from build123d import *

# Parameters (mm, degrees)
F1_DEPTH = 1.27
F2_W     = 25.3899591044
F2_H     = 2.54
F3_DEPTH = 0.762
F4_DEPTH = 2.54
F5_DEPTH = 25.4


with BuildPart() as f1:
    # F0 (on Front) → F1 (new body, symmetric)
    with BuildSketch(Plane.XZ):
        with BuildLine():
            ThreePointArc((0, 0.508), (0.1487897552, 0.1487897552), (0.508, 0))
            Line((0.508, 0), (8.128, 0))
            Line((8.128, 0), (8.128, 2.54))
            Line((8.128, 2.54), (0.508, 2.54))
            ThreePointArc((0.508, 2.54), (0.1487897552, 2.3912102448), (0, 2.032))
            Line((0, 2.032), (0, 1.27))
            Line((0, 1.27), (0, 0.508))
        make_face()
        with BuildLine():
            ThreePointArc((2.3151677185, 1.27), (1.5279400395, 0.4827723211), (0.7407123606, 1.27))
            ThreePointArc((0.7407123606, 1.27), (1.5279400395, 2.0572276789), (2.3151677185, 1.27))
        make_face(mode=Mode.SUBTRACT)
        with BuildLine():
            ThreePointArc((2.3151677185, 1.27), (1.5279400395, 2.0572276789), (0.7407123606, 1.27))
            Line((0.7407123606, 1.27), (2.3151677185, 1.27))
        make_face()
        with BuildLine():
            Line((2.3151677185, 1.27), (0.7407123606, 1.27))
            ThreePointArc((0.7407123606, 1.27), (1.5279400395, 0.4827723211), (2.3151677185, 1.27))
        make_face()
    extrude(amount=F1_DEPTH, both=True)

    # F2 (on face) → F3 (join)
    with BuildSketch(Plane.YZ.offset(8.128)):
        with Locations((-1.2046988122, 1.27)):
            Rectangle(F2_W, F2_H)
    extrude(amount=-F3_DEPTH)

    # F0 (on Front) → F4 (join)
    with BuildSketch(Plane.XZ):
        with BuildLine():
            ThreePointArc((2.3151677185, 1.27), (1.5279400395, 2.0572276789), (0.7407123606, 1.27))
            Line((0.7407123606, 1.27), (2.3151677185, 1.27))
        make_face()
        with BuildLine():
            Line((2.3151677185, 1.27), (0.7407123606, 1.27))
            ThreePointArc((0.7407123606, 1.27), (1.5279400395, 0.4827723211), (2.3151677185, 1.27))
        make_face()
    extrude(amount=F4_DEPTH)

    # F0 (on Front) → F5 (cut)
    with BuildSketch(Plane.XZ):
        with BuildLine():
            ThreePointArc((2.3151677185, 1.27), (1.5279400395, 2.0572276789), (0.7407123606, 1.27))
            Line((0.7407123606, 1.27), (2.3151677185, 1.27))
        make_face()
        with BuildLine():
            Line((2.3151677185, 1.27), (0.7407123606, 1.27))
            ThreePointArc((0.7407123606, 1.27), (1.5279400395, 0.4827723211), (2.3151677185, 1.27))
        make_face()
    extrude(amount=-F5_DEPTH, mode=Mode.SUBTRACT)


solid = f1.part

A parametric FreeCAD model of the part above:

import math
import FreeCAD as App
import Part
import Sketcher
Q = App.Units.Quantity


def add_polygon(sketch, points):
    """Adds a closed chain of lines whose ends are joined by coincident constraints."""
    first, n = sketch.GeometryCount, len(points)
    for a, b in zip(points, points[1:] + points[:1]):
        sketch.addGeometry(Part.LineSegment(App.Vector(*a, 0), App.Vector(*b, 0)), False)
    for i in range(n):
        sketch.addConstraint(Sketcher.Constraint("Coincident", first + i, 2, first + (i + 1) % n, 1))

doc = App.newDocument("Part")
body = doc.addObject("PartDesign::Body", "Body")

# Sketch on XZ plane
sketch1 = body.newObject("Sketcher::SketchObject", "Sketch")
sketch1.AttachmentSupport = (doc.getObject("XZ_Plane"), [""])
sketch1.MapMode = "FlatFace"
sketch1.addGeometry(Part.ArcOfCircle(Part.Circle(App.Vector(0.508, 0.508, 0), App.Vector(0, 0, 1), 0.508), math.radians(180), math.radians(270)), False)
sketch1.addGeometry(Part.LineSegment(App.Vector(0.508, 0, 0), App.Vector(8.128, 0, 0)), False)
sketch1.addGeometry(Part.LineSegment(App.Vector(8.128, 0, 0), App.Vector(8.128, 2.54, 0)), False)
sketch1.addGeometry(Part.LineSegment(App.Vector(8.128, 2.54, 0), App.Vector(0.508, 2.54, 0)), False)
sketch1.addGeometry(Part.ArcOfCircle(Part.Circle(App.Vector(0.508, 2.032, 0), App.Vector(0, 0, 1), 0.508), math.radians(90), math.radians(180)), False)
sketch1.addGeometry(Part.LineSegment(App.Vector(0, 2.032, 0), App.Vector(0, 0.508, 0)), False)
sketch1.addConstraint(Sketcher.Constraint("Tangent", 0, 2, 1, 1))
sketch1.addConstraint(Sketcher.Constraint("Coincident", 1, 2, 2, 1))
sketch1.addConstraint(Sketcher.Constraint("Coincident", 2, 2, 3, 1))
sketch1.addConstraint(Sketcher.Constraint("Tangent", 3, 2, 4, 1))
sketch1.addConstraint(Sketcher.Constraint("Tangent", 4, 2, 5, 1))
sketch1.addConstraint(Sketcher.Constraint("Tangent", 5, 2, 0, 1))
sketch1.addConstraint(Sketcher.Constraint("Horizontal", 1))
sketch1.addConstraint(Sketcher.Constraint("Vertical", 2))
sketch1.addConstraint(Sketcher.Constraint("Horizontal", 3))
sketch1.addConstraint(Sketcher.Constraint("Vertical", 5))
sketch1.addConstraint(Sketcher.Constraint("Equal", 0, 4))
sketch1.addConstraint(Sketcher.Constraint("PointOnObject", 0, 2, -1))
sketch1.addConstraint(Sketcher.Constraint("PointOnObject", 4, 2, -2))
sketch1.addConstraint(Sketcher.Constraint("Radius", 0, Q("0.02 in")))
sketch1.addConstraint(Sketcher.Constraint("DistanceX", 1, 1, 1, 2, Q("0.3 in")))
sketch1.addConstraint(Sketcher.Constraint("DistanceY", 2, 1, 2, 2, Q("0.1 in")))
pad1 = body.newObject("PartDesign::Pad", "Pad")
pad1.Profile = sketch1
pad1.Length = Q("0.1 in")
pad1.Midplane = True

# Sketch on YZ plane
sketch2 = body.newObject("Sketcher::SketchObject", "Sketch001")
sketch2.AttachmentSupport = (doc.getObject("YZ_Plane"), [""])
sketch2.MapMode = "FlatFace"
sketch2.AttachmentOffset = App.Placement(App.Vector(0, 0, 0.32 * 25.4), App.Rotation())
add_polygon(sketch2, [(-13.899678, 2.54), (-13.899678, 0), (11.490281, 0), (11.490281, 2.54)])  # lines 0-3
sketch2.addConstraint(Sketcher.Constraint("Vertical", 0))
sketch2.addConstraint(Sketcher.Constraint("Horizontal", 1))
sketch2.addConstraint(Sketcher.Constraint("Vertical", 2))
sketch2.addConstraint(Sketcher.Constraint("Horizontal", 3))
sketch2.addConstraint(Sketcher.Constraint("PointOnObject", 0, 2, -1))
sketch2.addConstraint(Sketcher.Constraint("DistanceY", 0, 2, 0, 1, Q("0.1 in")))
sketch2.addConstraint(Sketcher.Constraint("DistanceX", 1, 1, 1, 2, 25.389959))
sketch2.addConstraint(Sketcher.Constraint("DistanceX", 0, 2, -1, 1, 13.899678))
pad2 = body.newObject("PartDesign::Pad", "Pad001")
pad2.Profile = sketch2
pad2.Length = Q("0.03 in")
pad2.Reversed = True

# Sketch on XZ plane
sketch3 = body.newObject("Sketcher::SketchObject", "Sketch002")
sketch3.AttachmentSupport = (doc.getObject("XZ_Plane"), [""])
sketch3.MapMode = "FlatFace"
sketch3.addGeometry(Part.ArcOfCircle(Part.Circle(App.Vector(1.52794, 1.27, 0), App.Vector(0, 0, 1), 0.787228), math.radians(0), math.radians(180)), False)
sketch3.addGeometry(Part.ArcOfCircle(Part.Circle(App.Vector(1.52794, 1.27, 0), App.Vector(0, 0, 1), 0.787228), math.radians(180), math.radians(360)), False)
sketch3.addConstraint(Sketcher.Constraint("Tangent", 0, 1, 1, 2))
sketch3.addConstraint(Sketcher.Constraint("Coincident", 1, 1, 0, 2))
sketch3.addConstraint(Sketcher.Constraint("Horizontal", 1, 3, 0, 1))
sketch3.addConstraint(Sketcher.Constraint("Horizontal", 0, 1, 1, 1))
sketch3.addConstraint(Sketcher.Constraint("DistanceY", -1, 1, 0, 3, Q("0.05 in")))
sketch3.addConstraint(Sketcher.Constraint("Radius", 0, 0.787228))
sketch3.addConstraint(Sketcher.Constraint("DistanceX", -1, 1, 0, 3, 1.52794))
pad3 = body.newObject("PartDesign::Pad", "Pad002")
pad3.Profile = sketch3
pad3.Length = Q("0.1 in")

# Sketch on XZ plane
sketch4 = body.newObject("Sketcher::SketchObject", "Sketch003")
sketch4.AttachmentSupport = (doc.getObject("XZ_Plane"), [""])
sketch4.MapMode = "FlatFace"
sketch4.addGeometry(Part.ArcOfCircle(Part.Circle(App.Vector(1.52794, 1.27, 0), App.Vector(0, 0, 1), 0.787228), math.radians(0), math.radians(180)), False)
sketch4.addGeometry(Part.ArcOfCircle(Part.Circle(App.Vector(1.52794, 1.27, 0), App.Vector(0, 0, 1), 0.787228), math.radians(180), math.radians(360)), False)
sketch4.addConstraint(Sketcher.Constraint("Tangent", 0, 1, 1, 2))
sketch4.addConstraint(Sketcher.Constraint("Coincident", 1, 1, 0, 2))
sketch4.addConstraint(Sketcher.Constraint("Horizontal", 1, 3, 0, 1))
sketch4.addConstraint(Sketcher.Constraint("Horizontal", 0, 1, 1, 1))
sketch4.addConstraint(Sketcher.Constraint("DistanceY", -1, 1, 0, 3, Q("0.05 in")))
sketch4.addConstraint(Sketcher.Constraint("Radius", 0, 0.787228))
sketch4.addConstraint(Sketcher.Constraint("DistanceX", -1, 1, 0, 3, 1.52794))
pocket1 = body.newObject("PartDesign::Pocket", "Pocket")
pocket1.Profile = sketch4
pocket1.Length = Q("1 in")

doc.recompute()
